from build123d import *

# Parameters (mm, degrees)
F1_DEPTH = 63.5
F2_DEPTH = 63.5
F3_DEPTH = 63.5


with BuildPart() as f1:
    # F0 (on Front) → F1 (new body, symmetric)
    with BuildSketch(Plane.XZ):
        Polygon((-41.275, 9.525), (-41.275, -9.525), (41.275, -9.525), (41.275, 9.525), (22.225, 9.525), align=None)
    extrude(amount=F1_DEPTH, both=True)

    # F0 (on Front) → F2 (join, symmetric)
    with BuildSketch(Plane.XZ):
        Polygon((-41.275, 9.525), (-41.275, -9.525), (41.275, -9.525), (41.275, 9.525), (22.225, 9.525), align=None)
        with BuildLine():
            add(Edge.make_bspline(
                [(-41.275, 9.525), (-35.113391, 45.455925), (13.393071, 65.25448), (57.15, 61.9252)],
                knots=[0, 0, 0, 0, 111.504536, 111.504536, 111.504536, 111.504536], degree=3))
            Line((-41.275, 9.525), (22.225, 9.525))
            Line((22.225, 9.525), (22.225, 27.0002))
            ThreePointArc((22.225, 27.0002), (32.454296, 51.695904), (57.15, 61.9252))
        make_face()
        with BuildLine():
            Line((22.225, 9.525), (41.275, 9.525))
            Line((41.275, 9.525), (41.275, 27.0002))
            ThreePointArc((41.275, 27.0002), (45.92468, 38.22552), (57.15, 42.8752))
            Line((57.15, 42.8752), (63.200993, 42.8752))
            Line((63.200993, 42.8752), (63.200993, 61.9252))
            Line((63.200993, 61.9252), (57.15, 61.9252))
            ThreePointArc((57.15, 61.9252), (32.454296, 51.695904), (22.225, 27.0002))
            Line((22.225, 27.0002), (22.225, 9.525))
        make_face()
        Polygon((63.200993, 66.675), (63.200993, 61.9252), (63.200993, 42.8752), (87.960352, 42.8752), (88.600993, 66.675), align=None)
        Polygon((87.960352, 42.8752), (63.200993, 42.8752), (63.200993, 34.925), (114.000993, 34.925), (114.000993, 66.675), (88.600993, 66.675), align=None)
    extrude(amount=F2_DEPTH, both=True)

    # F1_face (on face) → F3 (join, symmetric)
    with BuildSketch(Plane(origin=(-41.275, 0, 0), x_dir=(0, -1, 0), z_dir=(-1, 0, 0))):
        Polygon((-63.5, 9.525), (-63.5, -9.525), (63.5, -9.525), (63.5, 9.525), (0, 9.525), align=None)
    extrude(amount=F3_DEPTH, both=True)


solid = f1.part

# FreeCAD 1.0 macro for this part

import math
import FreeCAD as App
import Part
import Sketcher

V = App.Vector
Q = App.Units.Quantity


def add_polygon(sketch, points):
    """Adds a closed chain of lines whose ends are joined by coincident constraints."""
    first, n = sketch.GeometryCount, len(points)
    for a, b in zip(points, points[1:] + points[:1]):
        sketch.addGeometry(Part.LineSegment(App.Vector(*a, 0), App.Vector(*b, 0)), False)
    for i in range(n):
        sketch.addConstraint(Sketcher.Constraint("Coincident", first + i, 2, first + (i + 1) % n, 1))

doc = App.newDocument("Part")
body = doc.addObject("PartDesign::Body", "Body")

# Sketch on XZ plane
sketch1 = doc.addObject("Sketcher::SketchObject", "Sketch")
body.addObject(sketch1)
sketch1.AttachmentSupport = (doc.XZ_Plane, [""])
sketch1.MapMode = "FlatFace"
add_polygon(sketch1, [(-41.275, 9.525), (-41.275, -9.525), (41.275, -9.525), (41.275, 9.525)])  # lines 0-3
sketch1.addConstraint([
    Sketcher.Constraint("Vertical", 0),
    Sketcher.Constraint("Horizontal", 1),
    Sketcher.Constraint("Vertical", 2),
    Sketcher.Constraint("Horizontal", 3),
    Sketcher.Constraint("Symmetric", 0, 2, 2, 2, -1, 1),
    Sketcher.Constraint("DistanceX", 1, 1, 1, 2, Q("3.25 in")),
    Sketcher.Constraint("DistanceY", 0, 2, 0, 1, Q("0.75 in")),
])
pad1 = doc.addObject("PartDesign::Pad", "Pad")
body.addObject(pad1)
pad1.Profile = sketch1
pad1.Length = Q("5 in")
pad1.Midplane = True

# Sketch on XZ plane
sketch2 = doc.addObject("Sketcher::SketchObject", "Sketch001")
body.addObject(sketch2)
sketch2.AttachmentSupport = (doc.XZ_Plane, [""])
sketch2.MapMode = "FlatFace"
sketch2.addGeometry([
    Part.LineSegment(V(-41.275, 9.525, 0), V(-41.275, -9.525, 0)),  # 0
    Part.LineSegment(V(-41.275, -9.525, 0), V(41.275, -9.525, 0)),  # 1
    Part.LineSegment(V(41.275, -9.525, 0), V(41.275, 27.0002, 0)),  # 2
    Part.ArcOfCircle(Part.Circle(V(57.150001, 27.000199, 0), V(0, 0, 1), 15.875001), math.radians(90.000002), math.radians(179.999998)),  # 3
    Part.LineSegment(V(57.15, 42.8752, 0), V(63.200993, 42.8752, 0)),  # 4
    Part.LineSegment(V(63.200993, 42.8752, 0), V(63.200993, 34.925, 0)),  # 5
    Part.LineSegment(V(63.200993, 34.925, 0), V(114.000993, 34.925, 0)),  # 6
    Part.LineSegment(V(114.000993, 34.925, 0), V(114.000993, 66.675, 0)),  # 7
    Part.LineSegment(V(114.000993, 66.675, 0), V(63.200993, 66.675, 0)),  # 8
    Part.LineSegment(V(63.200993, 66.675, 0), V(63.200993, 61.9252, 0)),  # 9
    Part.LineSegment(V(63.200993, 61.9252, 0), V(57.15, 61.9252, 0)),  # 10
    Part.BSplineCurve([V(-41.275, 9.525, 0), V(-35.113391, 45.455925, 0), V(13.393071, 65.25448, 0), V(57.15, 61.9252, 0)], [4, 4], [0, 111.504536], False, 3, [1, 1, 1, 1], False),  # 11
], False)
sketch2.addConstraint([
    Sketcher.Constraint("Block", 11),
    Sketcher.Constraint("Coincident", 0, 2, 1, 1),
    Sketcher.Constraint("Coincident", 1, 2, 2, 1),
    Sketcher.Constraint("Tangent", 2, 2, 3, 2),
    Sketcher.Constraint("Tangent", 3, 1, 4, 1),
    Sketcher.Constraint("Coincident", 4, 2, 5, 1),
    Sketcher.Constraint("Coincident", 5, 2, 6, 1),
    Sketcher.Constraint("Coincident", 6, 2, 7, 1),
    Sketcher.Constraint("Coincident", 7, 2, 8, 1),
    Sketcher.Constraint("Coincident", 8, 2, 9, 1),
    Sketcher.Constraint("Coincident", 9, 2, 10, 1),
    Sketcher.Constraint("Coincident", 10, 2, 11, 2),
    Sketcher.Constraint("Coincident", 11, 1, 0, 1),
    Sketcher.Constraint("Vertical", 0),
    Sketcher.Constraint("Horizontal", 1),
    Sketcher.Constraint("Vertical", 2),
    Sketcher.Constraint("Horizontal", 4),
    Sketcher.Constraint("Vertical", 5),
    Sketcher.Constraint("Horizontal", 6),
    Sketcher.Constraint("Vertical", 7),
    Sketcher.Constraint("Horizontal", 8),
    Sketcher.Constraint("Vertical", 9),
    Sketcher.Constraint("Horizontal", 10),
    Sketcher.Constraint("Vertical", 5, 2, 8, 2),
    Sketcher.Constraint("Vertical", 3, 1, 10, 2),
    Sketcher.Constraint("DistanceX", 6, 1, 6, 2, Q("2 in")),
    Sketcher.Constraint("Radius", 3, Q("0.625 in")),
    Sketcher.Constraint("DistanceY", 0, 2, 0, 1, Q("0.75 in")),
    Sketcher.Constraint("DistanceY", 7, 1, 7, 2, Q("1.25 in")),
    Sketcher.Constraint("DistanceY", 2, 1, 2, 2, Q("1.438 in")),
    Sketcher.Constraint("DistanceY", 5, 2, 5, 1, Q("0.313 in")),
    Sketcher.Constraint("DistanceX", 4, 1, 4, 2, Q("6.050993 mm")),
])
pad2 = doc.addObject("PartDesign::Pad", "Pad001")
body.addObject(pad2)
pad2.Profile = sketch2
pad2.Length = Q("5 in")
pad2.Midplane = True

# Sketch on YZ plane
sketch3 = doc.addObject("Sketcher::SketchObject", "Sketch002")
body.addObject(sketch3)
sketch3.AttachmentSupport = (doc.YZ_Plane, [""])
sketch3.MapMode = "FlatFace"
sketch3.AttachmentOffset = App.Placement(V(0, 0, -1.625 * 25.4), App.Rotation())
add_polygon(sketch3, [(63.5, 9.525), (63.5, -9.525), (-63.5, -9.525), (-63.5, 9.525)])  # lines 0-3
sketch3.addConstraint([
    Sketcher.Constraint("Vertical", 0),
    Sketcher.Constraint("Horizontal", 1),
    Sketcher.Constraint("Vertical", 2),
    Sketcher.Constraint("Horizontal", 3),
    Sketcher.Constraint("Symmetric", 0, 2, 2, 2, -1, 1),
    Sketcher.Constraint("DistanceX", 1, 2, 1, 1, Q("5 in")),
    Sketcher.Constraint("DistanceY", 0, 2, 0, 1, Q("0.75 in")),
])
pad3 = doc.addObject("PartDesign::Pad", "Pad002")
body.addObject(pad3)
pad3.Profile = sketch3
pad3.Length = Q("5 in")
pad3.Midplane = True

doc.recompute()
